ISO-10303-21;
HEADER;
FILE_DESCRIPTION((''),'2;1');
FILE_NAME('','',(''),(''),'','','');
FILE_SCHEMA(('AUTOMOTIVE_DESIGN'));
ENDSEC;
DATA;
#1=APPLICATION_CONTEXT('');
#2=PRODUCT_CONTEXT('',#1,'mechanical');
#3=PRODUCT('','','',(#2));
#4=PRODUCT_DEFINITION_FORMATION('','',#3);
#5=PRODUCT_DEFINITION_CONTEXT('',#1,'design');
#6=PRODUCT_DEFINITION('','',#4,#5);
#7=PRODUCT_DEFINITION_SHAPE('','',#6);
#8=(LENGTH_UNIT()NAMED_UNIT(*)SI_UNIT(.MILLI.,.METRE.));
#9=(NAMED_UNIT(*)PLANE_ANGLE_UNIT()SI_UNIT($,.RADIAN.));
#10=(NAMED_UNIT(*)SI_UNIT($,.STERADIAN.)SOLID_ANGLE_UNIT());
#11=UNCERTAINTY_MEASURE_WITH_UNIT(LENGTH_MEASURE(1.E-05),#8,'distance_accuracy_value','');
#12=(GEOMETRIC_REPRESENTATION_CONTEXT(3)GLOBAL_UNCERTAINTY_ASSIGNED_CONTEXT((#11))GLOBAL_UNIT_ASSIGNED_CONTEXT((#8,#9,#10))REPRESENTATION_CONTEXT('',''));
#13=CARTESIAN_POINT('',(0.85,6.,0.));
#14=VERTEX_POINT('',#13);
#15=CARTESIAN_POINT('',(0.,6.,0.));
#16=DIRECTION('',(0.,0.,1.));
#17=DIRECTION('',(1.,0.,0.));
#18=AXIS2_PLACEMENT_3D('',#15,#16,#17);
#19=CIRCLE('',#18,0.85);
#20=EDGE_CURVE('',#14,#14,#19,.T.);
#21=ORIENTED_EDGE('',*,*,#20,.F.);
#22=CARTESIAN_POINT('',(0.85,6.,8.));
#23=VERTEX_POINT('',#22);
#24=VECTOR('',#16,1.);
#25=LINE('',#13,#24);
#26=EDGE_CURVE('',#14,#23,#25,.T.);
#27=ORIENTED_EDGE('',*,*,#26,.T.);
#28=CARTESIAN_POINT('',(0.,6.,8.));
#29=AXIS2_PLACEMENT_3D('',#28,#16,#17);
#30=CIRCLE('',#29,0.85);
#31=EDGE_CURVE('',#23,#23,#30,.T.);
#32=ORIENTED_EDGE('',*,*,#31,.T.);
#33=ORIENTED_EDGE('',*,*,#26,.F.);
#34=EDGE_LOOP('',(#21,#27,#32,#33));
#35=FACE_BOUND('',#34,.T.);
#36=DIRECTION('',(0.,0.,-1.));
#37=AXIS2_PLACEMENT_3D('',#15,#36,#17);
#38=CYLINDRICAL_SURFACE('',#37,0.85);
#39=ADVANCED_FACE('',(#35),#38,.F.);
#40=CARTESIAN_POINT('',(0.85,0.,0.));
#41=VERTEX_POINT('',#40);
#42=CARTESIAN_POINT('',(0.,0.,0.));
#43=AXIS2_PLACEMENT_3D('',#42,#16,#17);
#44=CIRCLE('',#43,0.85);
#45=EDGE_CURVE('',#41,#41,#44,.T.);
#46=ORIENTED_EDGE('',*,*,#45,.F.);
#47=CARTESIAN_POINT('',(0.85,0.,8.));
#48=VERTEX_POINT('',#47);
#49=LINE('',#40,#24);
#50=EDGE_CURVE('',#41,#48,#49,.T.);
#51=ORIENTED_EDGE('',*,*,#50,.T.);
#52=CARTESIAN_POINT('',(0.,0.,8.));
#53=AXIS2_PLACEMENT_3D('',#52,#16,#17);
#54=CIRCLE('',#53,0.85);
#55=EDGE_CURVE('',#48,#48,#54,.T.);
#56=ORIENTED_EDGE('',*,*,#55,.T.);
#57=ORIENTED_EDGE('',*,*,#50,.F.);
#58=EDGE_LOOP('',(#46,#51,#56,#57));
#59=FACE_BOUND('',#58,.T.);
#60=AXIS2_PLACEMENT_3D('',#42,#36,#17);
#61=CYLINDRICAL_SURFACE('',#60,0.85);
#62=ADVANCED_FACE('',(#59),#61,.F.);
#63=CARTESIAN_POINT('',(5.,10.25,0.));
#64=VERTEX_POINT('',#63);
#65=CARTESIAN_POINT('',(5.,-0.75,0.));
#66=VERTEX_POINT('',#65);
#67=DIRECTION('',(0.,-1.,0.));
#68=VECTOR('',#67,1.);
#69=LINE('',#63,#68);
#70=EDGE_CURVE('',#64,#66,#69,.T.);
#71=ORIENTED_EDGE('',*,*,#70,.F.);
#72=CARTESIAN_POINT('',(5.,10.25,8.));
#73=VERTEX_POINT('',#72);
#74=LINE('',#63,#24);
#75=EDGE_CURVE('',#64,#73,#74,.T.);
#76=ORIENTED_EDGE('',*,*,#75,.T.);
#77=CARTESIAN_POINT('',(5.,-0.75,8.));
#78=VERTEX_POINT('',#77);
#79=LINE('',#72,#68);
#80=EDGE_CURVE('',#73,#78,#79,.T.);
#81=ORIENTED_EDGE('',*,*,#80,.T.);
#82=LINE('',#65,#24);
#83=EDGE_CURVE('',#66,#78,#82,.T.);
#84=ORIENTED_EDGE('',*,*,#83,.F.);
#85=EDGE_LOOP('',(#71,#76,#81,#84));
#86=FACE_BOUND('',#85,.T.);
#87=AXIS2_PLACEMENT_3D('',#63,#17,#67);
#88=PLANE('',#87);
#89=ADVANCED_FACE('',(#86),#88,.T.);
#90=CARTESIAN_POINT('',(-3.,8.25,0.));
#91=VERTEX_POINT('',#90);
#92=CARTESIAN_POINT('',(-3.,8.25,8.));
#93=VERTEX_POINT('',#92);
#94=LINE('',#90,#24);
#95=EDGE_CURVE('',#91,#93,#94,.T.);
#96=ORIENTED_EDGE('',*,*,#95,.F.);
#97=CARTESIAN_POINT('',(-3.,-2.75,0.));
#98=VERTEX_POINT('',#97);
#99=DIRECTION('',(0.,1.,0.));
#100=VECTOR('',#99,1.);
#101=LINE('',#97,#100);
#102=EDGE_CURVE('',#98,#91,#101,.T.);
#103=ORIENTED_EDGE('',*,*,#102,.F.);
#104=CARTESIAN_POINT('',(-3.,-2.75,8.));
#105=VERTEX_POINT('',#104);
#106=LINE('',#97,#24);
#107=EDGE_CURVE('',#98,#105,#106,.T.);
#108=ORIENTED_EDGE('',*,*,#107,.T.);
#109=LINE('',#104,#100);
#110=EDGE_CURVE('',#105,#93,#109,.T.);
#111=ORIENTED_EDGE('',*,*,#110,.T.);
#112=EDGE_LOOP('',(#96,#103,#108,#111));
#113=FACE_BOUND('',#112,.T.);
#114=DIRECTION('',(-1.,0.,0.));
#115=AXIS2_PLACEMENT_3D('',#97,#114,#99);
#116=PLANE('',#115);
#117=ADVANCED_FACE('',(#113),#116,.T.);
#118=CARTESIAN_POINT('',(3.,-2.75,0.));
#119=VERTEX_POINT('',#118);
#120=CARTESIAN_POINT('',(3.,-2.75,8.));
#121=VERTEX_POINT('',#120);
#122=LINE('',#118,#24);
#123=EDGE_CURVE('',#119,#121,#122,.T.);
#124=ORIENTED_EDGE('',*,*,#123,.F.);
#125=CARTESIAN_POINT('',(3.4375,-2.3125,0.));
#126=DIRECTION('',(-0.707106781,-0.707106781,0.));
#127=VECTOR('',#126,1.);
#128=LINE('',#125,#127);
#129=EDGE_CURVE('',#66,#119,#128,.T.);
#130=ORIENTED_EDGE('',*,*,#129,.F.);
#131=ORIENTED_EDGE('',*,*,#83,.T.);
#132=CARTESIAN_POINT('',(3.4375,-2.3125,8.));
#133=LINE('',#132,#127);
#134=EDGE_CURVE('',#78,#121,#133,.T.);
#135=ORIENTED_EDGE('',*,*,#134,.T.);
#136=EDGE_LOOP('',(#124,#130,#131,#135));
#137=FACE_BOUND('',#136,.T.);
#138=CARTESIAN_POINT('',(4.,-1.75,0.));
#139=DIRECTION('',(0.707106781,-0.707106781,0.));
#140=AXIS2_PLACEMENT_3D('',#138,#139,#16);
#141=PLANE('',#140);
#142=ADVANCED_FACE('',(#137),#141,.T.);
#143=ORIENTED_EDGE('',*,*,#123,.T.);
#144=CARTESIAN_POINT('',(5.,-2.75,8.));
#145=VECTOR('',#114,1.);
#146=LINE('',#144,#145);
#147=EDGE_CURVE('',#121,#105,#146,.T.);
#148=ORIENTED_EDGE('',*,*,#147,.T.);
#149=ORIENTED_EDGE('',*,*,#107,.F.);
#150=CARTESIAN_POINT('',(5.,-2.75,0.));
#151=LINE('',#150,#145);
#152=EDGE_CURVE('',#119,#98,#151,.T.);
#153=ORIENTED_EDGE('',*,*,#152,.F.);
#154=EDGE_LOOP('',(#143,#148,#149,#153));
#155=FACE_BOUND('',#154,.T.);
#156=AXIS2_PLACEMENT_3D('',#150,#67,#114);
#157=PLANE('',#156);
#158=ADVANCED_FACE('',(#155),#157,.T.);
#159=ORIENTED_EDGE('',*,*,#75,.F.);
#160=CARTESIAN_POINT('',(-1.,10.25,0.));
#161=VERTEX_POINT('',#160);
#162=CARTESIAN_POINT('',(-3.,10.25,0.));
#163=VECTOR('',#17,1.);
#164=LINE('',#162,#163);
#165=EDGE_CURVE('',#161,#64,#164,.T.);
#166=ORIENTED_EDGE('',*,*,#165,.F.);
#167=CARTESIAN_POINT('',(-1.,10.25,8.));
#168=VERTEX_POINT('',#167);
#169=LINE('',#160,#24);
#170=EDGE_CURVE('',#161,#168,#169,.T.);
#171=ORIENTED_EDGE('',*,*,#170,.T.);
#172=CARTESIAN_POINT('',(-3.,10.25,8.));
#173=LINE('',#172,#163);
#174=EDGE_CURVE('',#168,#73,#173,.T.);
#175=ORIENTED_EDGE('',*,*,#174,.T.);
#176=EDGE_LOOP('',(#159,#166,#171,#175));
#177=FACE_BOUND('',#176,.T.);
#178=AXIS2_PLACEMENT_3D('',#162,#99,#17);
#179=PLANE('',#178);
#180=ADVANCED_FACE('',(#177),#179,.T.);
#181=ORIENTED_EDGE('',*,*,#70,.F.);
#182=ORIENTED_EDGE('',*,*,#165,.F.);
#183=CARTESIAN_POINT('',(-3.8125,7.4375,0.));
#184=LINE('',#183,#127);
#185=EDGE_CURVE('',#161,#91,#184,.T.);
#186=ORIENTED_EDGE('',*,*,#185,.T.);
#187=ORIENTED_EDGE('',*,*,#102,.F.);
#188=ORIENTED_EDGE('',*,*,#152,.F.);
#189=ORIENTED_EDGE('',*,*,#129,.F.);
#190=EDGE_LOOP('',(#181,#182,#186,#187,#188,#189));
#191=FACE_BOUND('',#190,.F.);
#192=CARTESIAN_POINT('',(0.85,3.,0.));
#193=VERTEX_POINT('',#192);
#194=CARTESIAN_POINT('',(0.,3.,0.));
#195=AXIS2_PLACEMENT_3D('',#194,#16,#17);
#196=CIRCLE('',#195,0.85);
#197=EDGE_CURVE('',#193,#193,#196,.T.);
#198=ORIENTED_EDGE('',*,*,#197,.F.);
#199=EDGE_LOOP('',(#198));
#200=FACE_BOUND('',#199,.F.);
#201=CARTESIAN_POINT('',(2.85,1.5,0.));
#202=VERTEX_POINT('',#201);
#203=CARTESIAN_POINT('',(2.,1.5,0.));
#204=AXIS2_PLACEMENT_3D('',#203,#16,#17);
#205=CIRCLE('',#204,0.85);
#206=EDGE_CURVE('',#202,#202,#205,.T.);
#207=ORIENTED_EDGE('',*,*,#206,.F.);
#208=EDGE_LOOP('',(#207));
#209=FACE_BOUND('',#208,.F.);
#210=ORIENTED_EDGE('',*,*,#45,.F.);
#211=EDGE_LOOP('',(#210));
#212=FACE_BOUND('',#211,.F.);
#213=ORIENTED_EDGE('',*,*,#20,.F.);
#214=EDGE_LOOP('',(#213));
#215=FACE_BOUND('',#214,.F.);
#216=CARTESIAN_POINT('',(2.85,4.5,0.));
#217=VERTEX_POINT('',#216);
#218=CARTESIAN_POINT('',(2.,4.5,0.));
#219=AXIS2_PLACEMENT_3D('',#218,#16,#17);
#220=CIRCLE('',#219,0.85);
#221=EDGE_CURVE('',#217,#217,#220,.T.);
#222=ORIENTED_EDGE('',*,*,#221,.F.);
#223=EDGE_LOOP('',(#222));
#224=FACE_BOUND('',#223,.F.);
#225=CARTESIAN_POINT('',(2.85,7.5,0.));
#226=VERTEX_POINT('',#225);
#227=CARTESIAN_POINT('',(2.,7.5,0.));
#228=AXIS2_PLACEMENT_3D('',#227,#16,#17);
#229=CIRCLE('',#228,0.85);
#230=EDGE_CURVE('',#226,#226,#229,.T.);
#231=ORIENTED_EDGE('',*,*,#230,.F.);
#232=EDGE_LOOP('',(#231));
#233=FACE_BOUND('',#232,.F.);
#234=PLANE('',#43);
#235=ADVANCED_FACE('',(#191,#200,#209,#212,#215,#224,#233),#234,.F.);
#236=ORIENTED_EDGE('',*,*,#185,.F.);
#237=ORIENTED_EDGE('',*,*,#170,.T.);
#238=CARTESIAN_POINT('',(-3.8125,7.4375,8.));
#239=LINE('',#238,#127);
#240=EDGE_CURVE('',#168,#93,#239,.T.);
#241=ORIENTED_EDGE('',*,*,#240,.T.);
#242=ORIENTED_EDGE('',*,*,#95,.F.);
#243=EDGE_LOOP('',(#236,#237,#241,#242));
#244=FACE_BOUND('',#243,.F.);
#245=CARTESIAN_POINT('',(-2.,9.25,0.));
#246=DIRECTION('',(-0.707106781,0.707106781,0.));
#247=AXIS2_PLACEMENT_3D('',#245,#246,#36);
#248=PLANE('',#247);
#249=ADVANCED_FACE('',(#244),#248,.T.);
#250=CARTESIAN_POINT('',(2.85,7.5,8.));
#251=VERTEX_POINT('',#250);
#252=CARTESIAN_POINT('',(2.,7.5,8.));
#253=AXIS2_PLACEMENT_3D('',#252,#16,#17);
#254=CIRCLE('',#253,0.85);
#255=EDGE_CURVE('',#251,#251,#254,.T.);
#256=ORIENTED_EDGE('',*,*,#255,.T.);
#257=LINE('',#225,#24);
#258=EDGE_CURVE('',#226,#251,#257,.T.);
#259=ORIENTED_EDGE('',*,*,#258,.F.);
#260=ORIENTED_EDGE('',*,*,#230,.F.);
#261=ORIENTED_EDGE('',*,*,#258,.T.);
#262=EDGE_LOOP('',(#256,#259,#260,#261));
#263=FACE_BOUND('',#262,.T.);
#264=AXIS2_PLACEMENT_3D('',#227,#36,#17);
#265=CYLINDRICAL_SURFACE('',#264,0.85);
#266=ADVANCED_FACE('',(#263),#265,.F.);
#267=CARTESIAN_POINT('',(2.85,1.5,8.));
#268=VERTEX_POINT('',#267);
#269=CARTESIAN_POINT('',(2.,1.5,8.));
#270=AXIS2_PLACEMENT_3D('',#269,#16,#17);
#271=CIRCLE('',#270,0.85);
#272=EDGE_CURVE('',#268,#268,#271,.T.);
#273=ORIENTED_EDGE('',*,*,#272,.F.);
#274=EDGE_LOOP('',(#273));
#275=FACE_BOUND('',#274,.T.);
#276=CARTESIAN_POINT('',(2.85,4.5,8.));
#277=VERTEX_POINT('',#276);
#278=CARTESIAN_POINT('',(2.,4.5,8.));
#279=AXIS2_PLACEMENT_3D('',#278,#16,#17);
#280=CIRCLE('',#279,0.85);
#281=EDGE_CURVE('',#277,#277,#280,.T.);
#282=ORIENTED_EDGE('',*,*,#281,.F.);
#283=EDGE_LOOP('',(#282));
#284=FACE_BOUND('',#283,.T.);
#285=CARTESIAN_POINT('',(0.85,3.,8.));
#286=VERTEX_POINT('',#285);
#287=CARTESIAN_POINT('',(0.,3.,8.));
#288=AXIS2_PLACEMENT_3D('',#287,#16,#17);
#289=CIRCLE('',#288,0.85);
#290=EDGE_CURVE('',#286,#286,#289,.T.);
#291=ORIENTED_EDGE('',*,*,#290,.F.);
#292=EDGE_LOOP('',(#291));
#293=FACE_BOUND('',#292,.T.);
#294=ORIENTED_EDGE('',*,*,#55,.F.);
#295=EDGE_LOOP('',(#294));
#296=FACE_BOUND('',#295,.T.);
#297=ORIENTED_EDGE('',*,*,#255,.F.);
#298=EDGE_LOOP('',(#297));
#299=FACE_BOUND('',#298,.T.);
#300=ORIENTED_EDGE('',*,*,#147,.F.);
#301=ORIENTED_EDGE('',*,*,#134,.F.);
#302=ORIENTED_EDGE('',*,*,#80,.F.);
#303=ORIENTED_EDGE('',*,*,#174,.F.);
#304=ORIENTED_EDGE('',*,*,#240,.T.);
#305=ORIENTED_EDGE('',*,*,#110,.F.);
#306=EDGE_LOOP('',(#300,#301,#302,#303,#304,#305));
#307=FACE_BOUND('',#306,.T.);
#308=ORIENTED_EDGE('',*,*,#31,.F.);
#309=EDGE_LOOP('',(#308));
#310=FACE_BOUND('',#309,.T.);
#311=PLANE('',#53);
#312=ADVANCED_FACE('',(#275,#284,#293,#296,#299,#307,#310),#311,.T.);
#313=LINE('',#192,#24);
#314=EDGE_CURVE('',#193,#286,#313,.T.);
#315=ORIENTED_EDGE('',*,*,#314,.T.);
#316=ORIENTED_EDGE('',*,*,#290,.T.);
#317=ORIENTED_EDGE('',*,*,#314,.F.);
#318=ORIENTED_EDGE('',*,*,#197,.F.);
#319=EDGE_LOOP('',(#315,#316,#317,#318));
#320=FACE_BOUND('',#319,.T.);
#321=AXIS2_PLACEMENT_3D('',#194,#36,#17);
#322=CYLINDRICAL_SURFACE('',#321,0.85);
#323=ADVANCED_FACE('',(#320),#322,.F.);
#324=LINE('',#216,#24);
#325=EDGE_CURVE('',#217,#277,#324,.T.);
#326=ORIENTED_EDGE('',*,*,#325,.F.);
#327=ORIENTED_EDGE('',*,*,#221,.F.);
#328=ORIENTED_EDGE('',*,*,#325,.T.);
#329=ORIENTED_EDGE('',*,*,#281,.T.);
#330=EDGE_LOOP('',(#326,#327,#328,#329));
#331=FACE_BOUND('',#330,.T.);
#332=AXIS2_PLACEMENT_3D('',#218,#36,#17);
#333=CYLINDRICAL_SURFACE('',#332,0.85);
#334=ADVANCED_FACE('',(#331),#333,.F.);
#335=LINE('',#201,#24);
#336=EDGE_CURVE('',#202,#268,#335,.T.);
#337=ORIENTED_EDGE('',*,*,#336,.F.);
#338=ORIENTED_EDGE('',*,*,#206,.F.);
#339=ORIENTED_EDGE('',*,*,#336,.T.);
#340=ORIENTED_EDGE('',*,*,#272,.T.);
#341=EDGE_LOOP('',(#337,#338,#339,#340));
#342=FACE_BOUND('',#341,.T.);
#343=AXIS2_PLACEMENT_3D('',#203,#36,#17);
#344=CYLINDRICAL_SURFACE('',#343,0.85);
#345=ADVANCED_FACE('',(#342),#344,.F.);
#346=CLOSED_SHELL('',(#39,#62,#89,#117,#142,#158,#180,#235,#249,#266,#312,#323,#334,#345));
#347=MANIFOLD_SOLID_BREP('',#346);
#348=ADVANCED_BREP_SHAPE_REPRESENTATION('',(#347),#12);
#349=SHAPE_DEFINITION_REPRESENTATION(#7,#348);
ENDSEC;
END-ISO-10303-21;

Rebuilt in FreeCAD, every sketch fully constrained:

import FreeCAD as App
import Part
import Sketcher

V = App.Vector


def edges_at(feature, points):
    """Names of the edges that pass closest to the given points."""
    edges = feature.Shape.Edges
    near = lambda p: min(range(len(edges)), key=lambda i: edges[i].distToShape(Part.Vertex(*p))[0])
    return sorted({f"Edge{near(p) + 1}" for p in points})


def add_polygon(sketch, points):
    """Adds a closed chain of lines whose ends are joined by coincident constraints."""
    first, n = sketch.GeometryCount, len(points)
    for a, b in zip(points, points[1:] + points[:1]):
        sketch.addGeometry(Part.LineSegment(App.Vector(*a, 0), App.Vector(*b, 0)), False)
    for i in range(n):
        sketch.addConstraint(Sketcher.Constraint("Coincident", first + i, 2, first + (i + 1) % n, 1))

doc = App.newDocument("Part")
params = doc.addObject("Spreadsheet::Sheet", "Params")
for row, (alias, value) in enumerate([
    ("sketch1_diameter", "1.7 mm"),
    ("sketch1_width", "8 mm"),
    ("sketch1_height", "13 mm"),
    ("pad1_length", "8 mm"),
    ("chamfer_size", "2 mm"),
], start=1):
    params.set(f"A{row}", alias)
    params.set(f"B{row}", "=" + value)
    params.setAlias(f"B{row}", alias)

body = doc.addObject("PartDesign::Body", "Body")

sketch1 = doc.addObject("Sketcher::SketchObject", "Sketch")
body.addObject(sketch1)
sketch1.AttachmentSupport = (doc.XY_Plane, [""])
sketch1.MapMode = "FlatFace"
add_polygon(sketch1, [(5, 10.2), (-3, 10.2), (-3, -2.8), (5, -2.8)])
sketch1.addGeometry(Part.Circle(V(0, 0, 0), V(0, 0, 1), 0.8), False)
sketch1.addGeometry(Part.Circle(V(0, 3, 0), V(0, 0, 1), 0.8), False)
sketch1.addGeometry(Part.Circle(V(2, 1.5, 0), V(0, 0, 1), 0.8), False)
sketch1.addGeometry(Part.Circle(V(0, 6, 0), V(0, 0, 1), 0.8), False)
sketch1.addGeometry(Part.Circle(V(2, 4.5, 0), V(0, 0, 1), 0.8), False)
sketch1.addGeometry(Part.Circle(V(2, 7.5, 0), V(0, 0, 1), 0.8), False)
sketch1.addConstraint([
    Sketcher.Constraint("Horizontal", 0),
    Sketcher.Constraint("Vertical", 1),
    Sketcher.Constraint("Horizontal", 2),
    Sketcher.Constraint("Vertical", 3),
    Sketcher.Constraint("Coincident", 4, 3, -1, 1),
    Sketcher.Constraint("Equal", 4, 5),
    Sketcher.Constraint("Equal", 5, 6),
    Sketcher.Constraint("Equal", 6, 7),
    Sketcher.Constraint("Equal", 7, 8),
    Sketcher.Constraint("Equal", 8, 9),
    Sketcher.Constraint("PointOnObject", 5, 3, -2),
    Sketcher.Constraint("PointOnObject", 7, 3, -2),
    Sketcher.Constraint("Vertical", 6, 3, 8, 3),
    Sketcher.Constraint("Vertical", 8, 3, 9, 3),
    Sketcher.Constraint("Diameter", 4, 1.7),
    Sketcher.Constraint("DistanceX", 0, 2, 0, 1, 8.0),
    Sketcher.Constraint("DistanceY", 1, 2, 1, 1, 13.0),
    Sketcher.Constraint("DistanceY", -1, 1, 5, 3, 3.0),
    Sketcher.Constraint("DistanceX", -1, 1, 6, 3, 2.0),
    Sketcher.Constraint("DistanceX", 0, 2, -1, 1, 3.0),
    Sketcher.Constraint("DistanceY", 5, 3, 7, 3, 3.0),
    Sketcher.Constraint("DistanceY", 6, 3, 8, 3, 3.0),
    Sketcher.Constraint("DistanceY", 8, 3, 9, 3, 3.0),
    Sketcher.Constraint("DistanceY", -1, 1, 6, 3, 1.5),
    Sketcher.Constraint("DistanceY", 1, 2, -1, 1, 2.75),
])
sketch1.setExpression("Constraints[18]", "Params.sketch1_diameter")
sketch1.setExpression("Constraints[19]", "Params.sketch1_width")
sketch1.setExpression("Constraints[20]", "Params.sketch1_height")
pad1 = doc.addObject("PartDesign::Pad", "Pad")
body.addObject(pad1)
pad1.Profile = sketch1
pad1.setExpression("Length", "Params.pad1_length")
doc.recompute()

chamfer = doc.addObject("PartDesign::Chamfer", "Chamfer")
body.addObject(chamfer)
chamfer.Base = (pad1, edges_at(pad1, [(5, -2.75, 4), (-3, 10.25, 4)]))
chamfer.setExpression("Size", "Params.chamfer_size")

doc.recompute()
